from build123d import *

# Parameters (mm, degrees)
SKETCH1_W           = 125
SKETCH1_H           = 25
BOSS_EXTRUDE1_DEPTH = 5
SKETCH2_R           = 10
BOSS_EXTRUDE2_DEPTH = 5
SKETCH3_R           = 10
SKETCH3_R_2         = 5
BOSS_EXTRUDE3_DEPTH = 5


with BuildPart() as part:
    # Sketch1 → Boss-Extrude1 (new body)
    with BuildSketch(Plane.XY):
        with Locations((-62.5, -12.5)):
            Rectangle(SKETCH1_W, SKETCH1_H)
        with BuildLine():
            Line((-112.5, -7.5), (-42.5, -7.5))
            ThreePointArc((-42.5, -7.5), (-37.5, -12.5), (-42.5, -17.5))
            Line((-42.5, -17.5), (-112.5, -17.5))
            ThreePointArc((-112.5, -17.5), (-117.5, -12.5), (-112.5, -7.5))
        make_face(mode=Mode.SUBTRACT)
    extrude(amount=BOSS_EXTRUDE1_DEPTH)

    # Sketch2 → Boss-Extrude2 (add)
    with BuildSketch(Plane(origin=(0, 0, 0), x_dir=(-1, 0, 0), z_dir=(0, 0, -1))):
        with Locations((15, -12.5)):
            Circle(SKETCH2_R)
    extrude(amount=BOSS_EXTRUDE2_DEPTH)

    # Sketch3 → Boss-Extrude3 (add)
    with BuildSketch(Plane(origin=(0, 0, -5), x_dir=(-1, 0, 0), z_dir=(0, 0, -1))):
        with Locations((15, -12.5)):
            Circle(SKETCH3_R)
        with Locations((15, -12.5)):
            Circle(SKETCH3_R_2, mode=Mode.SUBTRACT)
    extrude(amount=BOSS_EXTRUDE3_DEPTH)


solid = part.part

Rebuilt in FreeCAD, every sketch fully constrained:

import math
import FreeCAD as App
import Part
import Sketcher
Q = App.Units.Quantity


def add_polygon(sketch, points):
    """Adds a closed chain of lines whose ends are joined by coincident constraints."""
    first, n = sketch.GeometryCount, len(points)
    for a, b in zip(points, points[1:] + points[:1]):
        sketch.addGeometry(Part.LineSegment(App.Vector(*a, 0), App.Vector(*b, 0)), False)
    for i in range(n):
        sketch.addConstraint(Sketcher.Constraint("Coincident", first + i, 2, first + (i + 1) % n, 1))

doc = App.newDocument("Part")
body = doc.addObject("PartDesign::Body", "Body")

sketch1 = doc.addObject("Sketcher::SketchObject", "Sketch")
body.addObject(sketch1)
sketch1.AttachmentSupport = (doc.XY_Plane, [""])
sketch1.MapMode = "FlatFace"
add_polygon(sketch1, [(-125, 0), (-125, -25), (0, -25), (0, 0)])
sketch1.addGeometry(Part.ArcOfCircle(Part.Circle(App.Vector(-112, -12, 0), App.Vector(0, 0, 1), 5), math.radians(90), math.radians(270)), False)
sketch1.addGeometry(Part.LineSegment(App.Vector(-112, -8, 0), App.Vector(-42, -8, 0)), False)
sketch1.addGeometry(Part.ArcOfCircle(Part.Circle(App.Vector(-42, -12, 0), App.Vector(0, 0, 1), 5), math.radians(-90), math.radians(90)), False)
sketch1.addGeometry(Part.LineSegment(App.Vector(-42, -18, 0), App.Vector(-112, -18, 0)), False)
sketch1.addConstraint([
    Sketcher.Constraint("Tangent", 4, 1, 5, 1),
    Sketcher.Constraint("Tangent", 5, 2, 6, 2),
    Sketcher.Constraint("Tangent", 6, 1, 7, 1),
    Sketcher.Constraint("Tangent", 7, 2, 4, 2),
    Sketcher.Constraint("Vertical", 0),
    Sketcher.Constraint("Horizontal", 1),
    Sketcher.Constraint("Vertical", 2),
    Sketcher.Constraint("Horizontal", 3),
    Sketcher.Constraint("Horizontal", 5),
    Sketcher.Constraint("Horizontal", 7),
    Sketcher.Constraint("Coincident", 2, 2, -1, 1),
    Sketcher.Constraint("Radius", 4, Q("5 mm")),
    Sketcher.Constraint("DistanceX", 1, 1, 1, 2, Q("125 mm")),
    Sketcher.Constraint("DistanceX", 5, 1, 5, 2, Q("70 mm")),
    Sketcher.Constraint("DistanceY", 0, 2, 0, 1, Q("25 mm")),
    Sketcher.Constraint("DistanceX", 4, 3, -1, 1, Q("112.5 mm")),
    Sketcher.Constraint("DistanceY", 4, 3, -1, 1, Q("12.5 mm")),
])
pad1 = doc.addObject("PartDesign::Pad", "Pad")
body.addObject(pad1)
pad1.Profile = sketch1
pad1.Length = 5

sketch2 = doc.addObject("Sketcher::SketchObject", "Sketch001")
body.addObject(sketch2)
sketch2.AttachmentSupport = (doc.XY_Plane, [""])
sketch2.MapMode = "FlatFace"
sketch2.addGeometry(Part.Circle(App.Vector(-15, -12, 0), App.Vector(0, 0, 1), 10), False)
sketch2.addConstraint([
    Sketcher.Constraint("Diameter", 0, Q("20 mm")),
    Sketcher.Constraint("DistanceX", 0, 3, -1, 1, Q("15 mm")),
    Sketcher.Constraint("DistanceY", 0, 3, -1, 1, Q("12.5 mm")),
])
pad2 = doc.addObject("PartDesign::Pad", "Pad001")
body.addObject(pad2)
pad2.Profile = sketch2
pad2.Length = 5
pad2.Reversed = True

sketch3 = doc.addObject("Sketcher::SketchObject", "Sketch002")
body.addObject(sketch3)
sketch3.AttachmentSupport = (doc.XY_Plane, [""])
sketch3.MapMode = "FlatFace"
sketch3.AttachmentOffset = App.Placement(App.Vector(0, 0, -5), App.Rotation())
sketch3.addGeometry([
    Part.Circle(App.Vector(-15, -12, 0), App.Vector(0, 0, 1), 10),
    Part.Circle(App.Vector(-15, -12, 0), App.Vector(0, 0, 1), 5),
], False)
sketch3.addConstraint([
    Sketcher.Constraint("Coincident", 1, 3, 0, 3),
    Sketcher.Constraint("Diameter", 0, Q("20 mm")),
    Sketcher.Constraint("Diameter", 1, Q("10 mm")),
    Sketcher.Constraint("DistanceX", 0, 3, -1, 1, Q("15 mm")),
    Sketcher.Constraint("DistanceY", 0, 3, -1, 1, Q("12.5 mm")),
])
pad3 = doc.addObject("PartDesign::Pad", "Pad002")
body.addObject(pad3)
pad3.Profile = sketch3
pad3.Length = 5
pad3.Reversed = True

doc.recompute()
